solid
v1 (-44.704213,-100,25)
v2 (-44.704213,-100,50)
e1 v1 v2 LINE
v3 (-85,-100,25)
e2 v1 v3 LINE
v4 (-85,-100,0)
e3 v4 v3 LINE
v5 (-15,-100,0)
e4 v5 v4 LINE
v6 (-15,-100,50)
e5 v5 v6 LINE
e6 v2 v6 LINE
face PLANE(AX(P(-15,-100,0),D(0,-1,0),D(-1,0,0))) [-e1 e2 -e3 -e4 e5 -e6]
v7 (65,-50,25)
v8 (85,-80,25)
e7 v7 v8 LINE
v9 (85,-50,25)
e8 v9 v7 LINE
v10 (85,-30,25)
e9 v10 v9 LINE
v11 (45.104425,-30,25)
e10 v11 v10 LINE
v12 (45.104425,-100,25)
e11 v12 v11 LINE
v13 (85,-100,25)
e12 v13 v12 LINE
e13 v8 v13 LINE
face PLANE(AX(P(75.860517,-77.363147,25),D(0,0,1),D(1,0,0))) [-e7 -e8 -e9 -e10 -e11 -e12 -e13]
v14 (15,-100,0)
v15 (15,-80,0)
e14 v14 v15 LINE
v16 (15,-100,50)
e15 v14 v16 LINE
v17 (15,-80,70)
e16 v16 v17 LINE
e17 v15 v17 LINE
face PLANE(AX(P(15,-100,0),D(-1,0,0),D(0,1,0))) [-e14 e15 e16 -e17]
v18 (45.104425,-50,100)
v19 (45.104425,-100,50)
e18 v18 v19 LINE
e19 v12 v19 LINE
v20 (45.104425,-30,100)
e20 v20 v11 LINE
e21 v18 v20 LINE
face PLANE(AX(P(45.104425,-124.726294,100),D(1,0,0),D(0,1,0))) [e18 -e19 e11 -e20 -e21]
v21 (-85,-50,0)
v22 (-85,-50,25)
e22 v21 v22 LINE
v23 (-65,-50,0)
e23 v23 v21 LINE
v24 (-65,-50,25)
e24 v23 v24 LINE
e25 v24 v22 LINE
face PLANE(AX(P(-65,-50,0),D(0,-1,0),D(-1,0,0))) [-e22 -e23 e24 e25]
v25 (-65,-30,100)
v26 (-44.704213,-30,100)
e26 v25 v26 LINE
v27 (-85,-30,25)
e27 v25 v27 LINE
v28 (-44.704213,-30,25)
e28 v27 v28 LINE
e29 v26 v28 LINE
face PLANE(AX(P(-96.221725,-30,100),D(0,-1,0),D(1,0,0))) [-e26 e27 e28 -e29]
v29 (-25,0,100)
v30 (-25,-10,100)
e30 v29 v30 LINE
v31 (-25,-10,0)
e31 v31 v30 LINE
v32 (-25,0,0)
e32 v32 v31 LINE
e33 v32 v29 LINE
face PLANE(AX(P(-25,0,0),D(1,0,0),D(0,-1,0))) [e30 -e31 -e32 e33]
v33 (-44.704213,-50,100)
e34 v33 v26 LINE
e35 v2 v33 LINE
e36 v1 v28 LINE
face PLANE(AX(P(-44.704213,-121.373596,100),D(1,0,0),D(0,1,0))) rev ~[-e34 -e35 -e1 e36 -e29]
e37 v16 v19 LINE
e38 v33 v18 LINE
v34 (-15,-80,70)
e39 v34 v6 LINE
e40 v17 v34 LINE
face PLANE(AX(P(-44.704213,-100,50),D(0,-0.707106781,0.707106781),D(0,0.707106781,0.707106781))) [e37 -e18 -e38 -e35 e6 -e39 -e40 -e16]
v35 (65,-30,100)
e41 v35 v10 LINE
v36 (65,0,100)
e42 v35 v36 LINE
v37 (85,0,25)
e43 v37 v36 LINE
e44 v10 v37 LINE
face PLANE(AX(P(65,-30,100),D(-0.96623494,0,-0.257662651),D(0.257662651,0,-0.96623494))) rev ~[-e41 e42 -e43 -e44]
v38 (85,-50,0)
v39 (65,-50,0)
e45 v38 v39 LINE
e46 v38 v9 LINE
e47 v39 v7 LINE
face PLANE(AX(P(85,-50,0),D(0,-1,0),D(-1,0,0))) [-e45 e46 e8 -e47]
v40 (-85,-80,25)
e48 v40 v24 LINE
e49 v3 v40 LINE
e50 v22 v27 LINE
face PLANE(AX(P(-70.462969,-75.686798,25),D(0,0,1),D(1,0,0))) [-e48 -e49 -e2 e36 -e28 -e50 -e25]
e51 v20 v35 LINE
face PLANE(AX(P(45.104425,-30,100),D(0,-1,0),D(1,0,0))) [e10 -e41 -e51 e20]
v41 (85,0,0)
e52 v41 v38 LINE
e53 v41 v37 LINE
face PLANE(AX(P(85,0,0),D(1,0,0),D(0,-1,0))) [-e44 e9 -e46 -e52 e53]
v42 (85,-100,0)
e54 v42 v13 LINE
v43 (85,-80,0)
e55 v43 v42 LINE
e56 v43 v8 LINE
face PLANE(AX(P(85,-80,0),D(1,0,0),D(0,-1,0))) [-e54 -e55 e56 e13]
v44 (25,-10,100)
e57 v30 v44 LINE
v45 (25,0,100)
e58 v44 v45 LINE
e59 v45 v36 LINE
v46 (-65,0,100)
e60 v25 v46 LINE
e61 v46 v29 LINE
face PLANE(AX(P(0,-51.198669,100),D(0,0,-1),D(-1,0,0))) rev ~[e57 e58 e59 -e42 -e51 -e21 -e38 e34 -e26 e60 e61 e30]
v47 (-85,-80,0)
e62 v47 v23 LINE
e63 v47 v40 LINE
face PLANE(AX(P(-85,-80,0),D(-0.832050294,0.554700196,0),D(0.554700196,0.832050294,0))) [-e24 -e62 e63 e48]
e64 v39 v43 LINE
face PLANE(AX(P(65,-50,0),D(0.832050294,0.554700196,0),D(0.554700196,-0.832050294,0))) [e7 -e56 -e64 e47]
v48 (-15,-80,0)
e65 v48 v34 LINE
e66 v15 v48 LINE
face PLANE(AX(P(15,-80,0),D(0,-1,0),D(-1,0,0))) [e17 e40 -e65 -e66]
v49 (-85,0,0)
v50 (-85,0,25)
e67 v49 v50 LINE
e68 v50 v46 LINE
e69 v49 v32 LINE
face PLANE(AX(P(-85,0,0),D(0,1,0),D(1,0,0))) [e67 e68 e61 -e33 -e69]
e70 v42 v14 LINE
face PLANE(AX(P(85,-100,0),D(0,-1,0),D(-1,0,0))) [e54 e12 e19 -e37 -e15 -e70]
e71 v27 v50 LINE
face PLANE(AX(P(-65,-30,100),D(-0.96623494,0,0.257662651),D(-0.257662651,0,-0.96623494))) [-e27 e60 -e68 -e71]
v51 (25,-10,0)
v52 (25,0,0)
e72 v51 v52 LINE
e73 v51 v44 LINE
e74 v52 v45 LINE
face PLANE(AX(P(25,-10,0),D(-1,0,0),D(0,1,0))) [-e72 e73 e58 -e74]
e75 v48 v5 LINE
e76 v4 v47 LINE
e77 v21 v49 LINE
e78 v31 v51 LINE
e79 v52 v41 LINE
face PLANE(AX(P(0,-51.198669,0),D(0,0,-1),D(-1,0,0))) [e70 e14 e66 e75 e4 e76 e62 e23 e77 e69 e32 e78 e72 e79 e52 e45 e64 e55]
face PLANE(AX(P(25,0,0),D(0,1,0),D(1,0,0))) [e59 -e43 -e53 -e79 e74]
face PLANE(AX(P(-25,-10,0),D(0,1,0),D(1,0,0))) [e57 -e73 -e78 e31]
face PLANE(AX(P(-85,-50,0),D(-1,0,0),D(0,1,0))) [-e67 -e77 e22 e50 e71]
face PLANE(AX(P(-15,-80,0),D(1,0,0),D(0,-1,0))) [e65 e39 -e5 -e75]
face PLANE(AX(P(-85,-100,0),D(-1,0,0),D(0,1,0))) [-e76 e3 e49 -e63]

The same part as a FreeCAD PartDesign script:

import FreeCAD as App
import Part
import Sketcher
from FreeCAD import Vector


def add_polygon(sketch, points):
    """Adds a closed chain of lines whose ends are joined by coincident constraints."""
    first, n = sketch.GeometryCount, len(points)
    for a, b in zip(points, points[1:] + points[:1]):
        sketch.addGeometry(Part.LineSegment(App.Vector(*a, 0), App.Vector(*b, 0)), False)
    for i in range(n):
        sketch.addConstraint(Sketcher.Constraint("Coincident", first + i, 2, first + (i + 1) % n, 1))

doc = App.newDocument("Part")
body = doc.addObject("PartDesign::Body", "Body")

# Sketch on XY plane
sketch1 = body.newObject("Sketcher::SketchObject", "Sketch")
sketch1.AttachmentSupport = (doc.getObject("XY_Plane"), [""])
sketch1.MapMode = "FlatFace"
add_polygon(sketch1, [(-25, 0), (-85, 0), (-85, -50), (-65, -50), (-85, -80), (-85, -100), (-15, -100), (-15, -80), (15, -80), (15, -100), (85, -100), (85, -80), (65, -50), (85, -50), (85, 0), (25, 0), (25, -10), (-25, -10)])  # lines 0-17
sketch1.addConstraint([
    Sketcher.Constraint("Horizontal", 0),
    Sketcher.Constraint("Vertical", 1),
    Sketcher.Constraint("Horizontal", 2),
    Sketcher.Constraint("Vertical", 4),
    Sketcher.Constraint("Horizontal", 5),
    Sketcher.Constraint("Vertical", 6),
    Sketcher.Constraint("Horizontal", 7),
    Sketcher.Constraint("Vertical", 8),
    Sketcher.Constraint("Horizontal", 9),
    Sketcher.Constraint("Vertical", 10),
    Sketcher.Constraint("Horizontal", 12),
    Sketcher.Constraint("Vertical", 13),
    Sketcher.Constraint("Horizontal", 14),
    Sketcher.Constraint("Vertical", 15),
    Sketcher.Constraint("Horizontal", 16),
    Sketcher.Constraint("Vertical", 17),
    Sketcher.Constraint("Symmetric", 0, 2, 13, 2, -1, 1),
    Sketcher.Constraint("Symmetric", 5, 2, 8, 2, -2),
    Sketcher.Constraint("Symmetric", 3, 2, 10, 2, -2),
    Sketcher.Constraint("Symmetric", 2, 2, 11, 2, -2),
    Sketcher.Constraint("Symmetric", 14, 2, 17, 2, -2),
    Sketcher.Constraint("Horizontal", 3, 2, 6, 2),
    Sketcher.Constraint("Vertical", 1, 2, 3, 2),
    Sketcher.Constraint("Equal", 16, 1),
    Sketcher.Constraint("Equal", 12, 4),
    Sketcher.Constraint("DistanceX", 0, 2, 0, 1, 60.0),
    Sketcher.Constraint("DistanceX", 2, 1, 2, 2, 20.0),
    Sketcher.Constraint("DistanceX", 5, 1, 5, 2, 70.0),
    Sketcher.Constraint("DistanceX", 7, 1, 7, 2, 30.0),
    Sketcher.Constraint("DistanceY", 15, 2, 15, 1, 10.0),
    Sketcher.Constraint("DistanceY", 3, 2, -1, 1, 80.0),
])
pad1 = body.newObject("PartDesign::Pad", "Pad")
pad1.Profile = sketch1
pad1.Length = 100

# Sketch on XY plane
sketch2 = body.newObject("Sketcher::SketchObject", "Sketch001")
sketch2.AttachmentSupport = (doc.getObject("XY_Plane"), [""])
sketch2.MapMode = "FlatFace"
sketch2.AttachmentOffset = App.Placement(Vector(0, 0, 100), App.Rotation())
add_polygon(sketch2, [(45, -30), (45, -125), (107, -125), (107, -30)])  # lines 0-3
add_polygon(sketch2, [(-96, -30), (-96, -121), (-45, -121), (-45, -30)])  # lines 4-7
sketch2.addConstraint([
    Sketcher.Constraint("Vertical", 0),
    Sketcher.Constraint("Horizontal", 1),
    Sketcher.Constraint("Vertical", 2),
    Sketcher.Constraint("Horizontal", 3),
    Sketcher.Constraint("Vertical", 4),
    Sketcher.Constraint("Horizontal", 5),
    Sketcher.Constraint("Vertical", 6),
    Sketcher.Constraint("Horizontal", 7),
    Sketcher.Constraint("Horizontal", 3, 2, 6, 2),
    Sketcher.Constraint("DistanceY", 2, 2, -1, 1, 30.0),
    Sketcher.Constraint("DistanceY", 0, 2, 4, 2, 3.352698),
    Sketcher.Constraint("DistanceX", 1, 1, 1, 2, 61.512183),
    Sketcher.Constraint("DistanceX", 5, 1, 5, 2, 51.517512),
    Sketcher.Constraint("DistanceY", 0, 2, 0, 1, 94.726295),
    Sketcher.Constraint("DistanceX", -1, 1, 1, 2, 106.616608),
    Sketcher.Constraint("DistanceX", 4, 2, 0, 2, 141.326151),
])
pocket1 = body.newObject("PartDesign::Pocket", "Pocket")
pocket1.Profile = sketch2
pocket1.Length = 75

# Sketch on YZ plane
sketch3 = body.newObject("Sketcher::SketchObject", "Sketch002")
sketch3.AttachmentSupport = (doc.getObject("YZ_Plane"), [""])
sketch3.MapMode = "FlatFace"
sketch3.AttachmentOffset = App.Placement(Vector(0, 0, -44.704213), App.Rotation())
add_polygon(sketch3, [(-100, 50), (-100, 100), (-50, 100)])  # lines 0-2
sketch3.addConstraint([
    Sketcher.Constraint("Vertical", 0),
    Sketcher.Constraint("Horizontal", 1),
    Sketcher.Constraint("Equal", 1, 0),
    Sketcher.Constraint("DistanceX", 1, 1, 1, 2, 50.0),
    Sketcher.Constraint("DistanceX", 0, 2, -1, 1, 100.0),
    Sketcher.Constraint("DistanceY", -1, 1, 0, 2, 100.0),
])
pocket2 = body.newObject("PartDesign::Pocket", "Pocket001")
pocket2.Profile = sketch3
pocket2.Type = "ThroughAll"
pocket2.Reversed = True

# Sketch on XZ plane
sketch4 = body.newObject("Sketcher::SketchObject", "Sketch003")
sketch4.AttachmentSupport = (doc.getObject("XZ_Plane"), [""])
sketch4.MapMode = "FlatFace"
sketch4.AttachmentOffset = App.Placement(Vector(0, 0, 30), App.Rotation())
add_polygon(sketch4, [(-65, 100), (-85, 100), (-85, 25)])  # lines 0-2
add_polygon(sketch4, [(85, 100), (65, 100), (85, 25)])  # lines 3-5
sketch4.addConstraint([
    Sketcher.Constraint("Horizontal", 0),
    Sketcher.Constraint("Vertical", 1),
    Sketcher.Constraint("Horizontal", 3),
    Sketcher.Constraint("Vertical", 5),
    Sketcher.Constraint("Symmetric", 2, 2, 3, 2, -2),
    Sketcher.Constraint("Symmetric", 1, 2, 4, 2, -2),
    Sketcher.Constraint("DistanceX", 0, 2, 0, 1, 20.0),
    Sketcher.Constraint("DistanceY", 1, 2, 1, 1, 75.0),
    Sketcher.Constraint("DistanceX", 0, 2, -1, 1, 85.0),
    Sketcher.Constraint("DistanceY", -1, 1, 0, 2, 100.0),
])
pocket3 = body.newObject("PartDesign::Pocket", "Pocket002")
pocket3.Profile = sketch4
pocket3.Type = "ThroughAll"

doc.recompute()
